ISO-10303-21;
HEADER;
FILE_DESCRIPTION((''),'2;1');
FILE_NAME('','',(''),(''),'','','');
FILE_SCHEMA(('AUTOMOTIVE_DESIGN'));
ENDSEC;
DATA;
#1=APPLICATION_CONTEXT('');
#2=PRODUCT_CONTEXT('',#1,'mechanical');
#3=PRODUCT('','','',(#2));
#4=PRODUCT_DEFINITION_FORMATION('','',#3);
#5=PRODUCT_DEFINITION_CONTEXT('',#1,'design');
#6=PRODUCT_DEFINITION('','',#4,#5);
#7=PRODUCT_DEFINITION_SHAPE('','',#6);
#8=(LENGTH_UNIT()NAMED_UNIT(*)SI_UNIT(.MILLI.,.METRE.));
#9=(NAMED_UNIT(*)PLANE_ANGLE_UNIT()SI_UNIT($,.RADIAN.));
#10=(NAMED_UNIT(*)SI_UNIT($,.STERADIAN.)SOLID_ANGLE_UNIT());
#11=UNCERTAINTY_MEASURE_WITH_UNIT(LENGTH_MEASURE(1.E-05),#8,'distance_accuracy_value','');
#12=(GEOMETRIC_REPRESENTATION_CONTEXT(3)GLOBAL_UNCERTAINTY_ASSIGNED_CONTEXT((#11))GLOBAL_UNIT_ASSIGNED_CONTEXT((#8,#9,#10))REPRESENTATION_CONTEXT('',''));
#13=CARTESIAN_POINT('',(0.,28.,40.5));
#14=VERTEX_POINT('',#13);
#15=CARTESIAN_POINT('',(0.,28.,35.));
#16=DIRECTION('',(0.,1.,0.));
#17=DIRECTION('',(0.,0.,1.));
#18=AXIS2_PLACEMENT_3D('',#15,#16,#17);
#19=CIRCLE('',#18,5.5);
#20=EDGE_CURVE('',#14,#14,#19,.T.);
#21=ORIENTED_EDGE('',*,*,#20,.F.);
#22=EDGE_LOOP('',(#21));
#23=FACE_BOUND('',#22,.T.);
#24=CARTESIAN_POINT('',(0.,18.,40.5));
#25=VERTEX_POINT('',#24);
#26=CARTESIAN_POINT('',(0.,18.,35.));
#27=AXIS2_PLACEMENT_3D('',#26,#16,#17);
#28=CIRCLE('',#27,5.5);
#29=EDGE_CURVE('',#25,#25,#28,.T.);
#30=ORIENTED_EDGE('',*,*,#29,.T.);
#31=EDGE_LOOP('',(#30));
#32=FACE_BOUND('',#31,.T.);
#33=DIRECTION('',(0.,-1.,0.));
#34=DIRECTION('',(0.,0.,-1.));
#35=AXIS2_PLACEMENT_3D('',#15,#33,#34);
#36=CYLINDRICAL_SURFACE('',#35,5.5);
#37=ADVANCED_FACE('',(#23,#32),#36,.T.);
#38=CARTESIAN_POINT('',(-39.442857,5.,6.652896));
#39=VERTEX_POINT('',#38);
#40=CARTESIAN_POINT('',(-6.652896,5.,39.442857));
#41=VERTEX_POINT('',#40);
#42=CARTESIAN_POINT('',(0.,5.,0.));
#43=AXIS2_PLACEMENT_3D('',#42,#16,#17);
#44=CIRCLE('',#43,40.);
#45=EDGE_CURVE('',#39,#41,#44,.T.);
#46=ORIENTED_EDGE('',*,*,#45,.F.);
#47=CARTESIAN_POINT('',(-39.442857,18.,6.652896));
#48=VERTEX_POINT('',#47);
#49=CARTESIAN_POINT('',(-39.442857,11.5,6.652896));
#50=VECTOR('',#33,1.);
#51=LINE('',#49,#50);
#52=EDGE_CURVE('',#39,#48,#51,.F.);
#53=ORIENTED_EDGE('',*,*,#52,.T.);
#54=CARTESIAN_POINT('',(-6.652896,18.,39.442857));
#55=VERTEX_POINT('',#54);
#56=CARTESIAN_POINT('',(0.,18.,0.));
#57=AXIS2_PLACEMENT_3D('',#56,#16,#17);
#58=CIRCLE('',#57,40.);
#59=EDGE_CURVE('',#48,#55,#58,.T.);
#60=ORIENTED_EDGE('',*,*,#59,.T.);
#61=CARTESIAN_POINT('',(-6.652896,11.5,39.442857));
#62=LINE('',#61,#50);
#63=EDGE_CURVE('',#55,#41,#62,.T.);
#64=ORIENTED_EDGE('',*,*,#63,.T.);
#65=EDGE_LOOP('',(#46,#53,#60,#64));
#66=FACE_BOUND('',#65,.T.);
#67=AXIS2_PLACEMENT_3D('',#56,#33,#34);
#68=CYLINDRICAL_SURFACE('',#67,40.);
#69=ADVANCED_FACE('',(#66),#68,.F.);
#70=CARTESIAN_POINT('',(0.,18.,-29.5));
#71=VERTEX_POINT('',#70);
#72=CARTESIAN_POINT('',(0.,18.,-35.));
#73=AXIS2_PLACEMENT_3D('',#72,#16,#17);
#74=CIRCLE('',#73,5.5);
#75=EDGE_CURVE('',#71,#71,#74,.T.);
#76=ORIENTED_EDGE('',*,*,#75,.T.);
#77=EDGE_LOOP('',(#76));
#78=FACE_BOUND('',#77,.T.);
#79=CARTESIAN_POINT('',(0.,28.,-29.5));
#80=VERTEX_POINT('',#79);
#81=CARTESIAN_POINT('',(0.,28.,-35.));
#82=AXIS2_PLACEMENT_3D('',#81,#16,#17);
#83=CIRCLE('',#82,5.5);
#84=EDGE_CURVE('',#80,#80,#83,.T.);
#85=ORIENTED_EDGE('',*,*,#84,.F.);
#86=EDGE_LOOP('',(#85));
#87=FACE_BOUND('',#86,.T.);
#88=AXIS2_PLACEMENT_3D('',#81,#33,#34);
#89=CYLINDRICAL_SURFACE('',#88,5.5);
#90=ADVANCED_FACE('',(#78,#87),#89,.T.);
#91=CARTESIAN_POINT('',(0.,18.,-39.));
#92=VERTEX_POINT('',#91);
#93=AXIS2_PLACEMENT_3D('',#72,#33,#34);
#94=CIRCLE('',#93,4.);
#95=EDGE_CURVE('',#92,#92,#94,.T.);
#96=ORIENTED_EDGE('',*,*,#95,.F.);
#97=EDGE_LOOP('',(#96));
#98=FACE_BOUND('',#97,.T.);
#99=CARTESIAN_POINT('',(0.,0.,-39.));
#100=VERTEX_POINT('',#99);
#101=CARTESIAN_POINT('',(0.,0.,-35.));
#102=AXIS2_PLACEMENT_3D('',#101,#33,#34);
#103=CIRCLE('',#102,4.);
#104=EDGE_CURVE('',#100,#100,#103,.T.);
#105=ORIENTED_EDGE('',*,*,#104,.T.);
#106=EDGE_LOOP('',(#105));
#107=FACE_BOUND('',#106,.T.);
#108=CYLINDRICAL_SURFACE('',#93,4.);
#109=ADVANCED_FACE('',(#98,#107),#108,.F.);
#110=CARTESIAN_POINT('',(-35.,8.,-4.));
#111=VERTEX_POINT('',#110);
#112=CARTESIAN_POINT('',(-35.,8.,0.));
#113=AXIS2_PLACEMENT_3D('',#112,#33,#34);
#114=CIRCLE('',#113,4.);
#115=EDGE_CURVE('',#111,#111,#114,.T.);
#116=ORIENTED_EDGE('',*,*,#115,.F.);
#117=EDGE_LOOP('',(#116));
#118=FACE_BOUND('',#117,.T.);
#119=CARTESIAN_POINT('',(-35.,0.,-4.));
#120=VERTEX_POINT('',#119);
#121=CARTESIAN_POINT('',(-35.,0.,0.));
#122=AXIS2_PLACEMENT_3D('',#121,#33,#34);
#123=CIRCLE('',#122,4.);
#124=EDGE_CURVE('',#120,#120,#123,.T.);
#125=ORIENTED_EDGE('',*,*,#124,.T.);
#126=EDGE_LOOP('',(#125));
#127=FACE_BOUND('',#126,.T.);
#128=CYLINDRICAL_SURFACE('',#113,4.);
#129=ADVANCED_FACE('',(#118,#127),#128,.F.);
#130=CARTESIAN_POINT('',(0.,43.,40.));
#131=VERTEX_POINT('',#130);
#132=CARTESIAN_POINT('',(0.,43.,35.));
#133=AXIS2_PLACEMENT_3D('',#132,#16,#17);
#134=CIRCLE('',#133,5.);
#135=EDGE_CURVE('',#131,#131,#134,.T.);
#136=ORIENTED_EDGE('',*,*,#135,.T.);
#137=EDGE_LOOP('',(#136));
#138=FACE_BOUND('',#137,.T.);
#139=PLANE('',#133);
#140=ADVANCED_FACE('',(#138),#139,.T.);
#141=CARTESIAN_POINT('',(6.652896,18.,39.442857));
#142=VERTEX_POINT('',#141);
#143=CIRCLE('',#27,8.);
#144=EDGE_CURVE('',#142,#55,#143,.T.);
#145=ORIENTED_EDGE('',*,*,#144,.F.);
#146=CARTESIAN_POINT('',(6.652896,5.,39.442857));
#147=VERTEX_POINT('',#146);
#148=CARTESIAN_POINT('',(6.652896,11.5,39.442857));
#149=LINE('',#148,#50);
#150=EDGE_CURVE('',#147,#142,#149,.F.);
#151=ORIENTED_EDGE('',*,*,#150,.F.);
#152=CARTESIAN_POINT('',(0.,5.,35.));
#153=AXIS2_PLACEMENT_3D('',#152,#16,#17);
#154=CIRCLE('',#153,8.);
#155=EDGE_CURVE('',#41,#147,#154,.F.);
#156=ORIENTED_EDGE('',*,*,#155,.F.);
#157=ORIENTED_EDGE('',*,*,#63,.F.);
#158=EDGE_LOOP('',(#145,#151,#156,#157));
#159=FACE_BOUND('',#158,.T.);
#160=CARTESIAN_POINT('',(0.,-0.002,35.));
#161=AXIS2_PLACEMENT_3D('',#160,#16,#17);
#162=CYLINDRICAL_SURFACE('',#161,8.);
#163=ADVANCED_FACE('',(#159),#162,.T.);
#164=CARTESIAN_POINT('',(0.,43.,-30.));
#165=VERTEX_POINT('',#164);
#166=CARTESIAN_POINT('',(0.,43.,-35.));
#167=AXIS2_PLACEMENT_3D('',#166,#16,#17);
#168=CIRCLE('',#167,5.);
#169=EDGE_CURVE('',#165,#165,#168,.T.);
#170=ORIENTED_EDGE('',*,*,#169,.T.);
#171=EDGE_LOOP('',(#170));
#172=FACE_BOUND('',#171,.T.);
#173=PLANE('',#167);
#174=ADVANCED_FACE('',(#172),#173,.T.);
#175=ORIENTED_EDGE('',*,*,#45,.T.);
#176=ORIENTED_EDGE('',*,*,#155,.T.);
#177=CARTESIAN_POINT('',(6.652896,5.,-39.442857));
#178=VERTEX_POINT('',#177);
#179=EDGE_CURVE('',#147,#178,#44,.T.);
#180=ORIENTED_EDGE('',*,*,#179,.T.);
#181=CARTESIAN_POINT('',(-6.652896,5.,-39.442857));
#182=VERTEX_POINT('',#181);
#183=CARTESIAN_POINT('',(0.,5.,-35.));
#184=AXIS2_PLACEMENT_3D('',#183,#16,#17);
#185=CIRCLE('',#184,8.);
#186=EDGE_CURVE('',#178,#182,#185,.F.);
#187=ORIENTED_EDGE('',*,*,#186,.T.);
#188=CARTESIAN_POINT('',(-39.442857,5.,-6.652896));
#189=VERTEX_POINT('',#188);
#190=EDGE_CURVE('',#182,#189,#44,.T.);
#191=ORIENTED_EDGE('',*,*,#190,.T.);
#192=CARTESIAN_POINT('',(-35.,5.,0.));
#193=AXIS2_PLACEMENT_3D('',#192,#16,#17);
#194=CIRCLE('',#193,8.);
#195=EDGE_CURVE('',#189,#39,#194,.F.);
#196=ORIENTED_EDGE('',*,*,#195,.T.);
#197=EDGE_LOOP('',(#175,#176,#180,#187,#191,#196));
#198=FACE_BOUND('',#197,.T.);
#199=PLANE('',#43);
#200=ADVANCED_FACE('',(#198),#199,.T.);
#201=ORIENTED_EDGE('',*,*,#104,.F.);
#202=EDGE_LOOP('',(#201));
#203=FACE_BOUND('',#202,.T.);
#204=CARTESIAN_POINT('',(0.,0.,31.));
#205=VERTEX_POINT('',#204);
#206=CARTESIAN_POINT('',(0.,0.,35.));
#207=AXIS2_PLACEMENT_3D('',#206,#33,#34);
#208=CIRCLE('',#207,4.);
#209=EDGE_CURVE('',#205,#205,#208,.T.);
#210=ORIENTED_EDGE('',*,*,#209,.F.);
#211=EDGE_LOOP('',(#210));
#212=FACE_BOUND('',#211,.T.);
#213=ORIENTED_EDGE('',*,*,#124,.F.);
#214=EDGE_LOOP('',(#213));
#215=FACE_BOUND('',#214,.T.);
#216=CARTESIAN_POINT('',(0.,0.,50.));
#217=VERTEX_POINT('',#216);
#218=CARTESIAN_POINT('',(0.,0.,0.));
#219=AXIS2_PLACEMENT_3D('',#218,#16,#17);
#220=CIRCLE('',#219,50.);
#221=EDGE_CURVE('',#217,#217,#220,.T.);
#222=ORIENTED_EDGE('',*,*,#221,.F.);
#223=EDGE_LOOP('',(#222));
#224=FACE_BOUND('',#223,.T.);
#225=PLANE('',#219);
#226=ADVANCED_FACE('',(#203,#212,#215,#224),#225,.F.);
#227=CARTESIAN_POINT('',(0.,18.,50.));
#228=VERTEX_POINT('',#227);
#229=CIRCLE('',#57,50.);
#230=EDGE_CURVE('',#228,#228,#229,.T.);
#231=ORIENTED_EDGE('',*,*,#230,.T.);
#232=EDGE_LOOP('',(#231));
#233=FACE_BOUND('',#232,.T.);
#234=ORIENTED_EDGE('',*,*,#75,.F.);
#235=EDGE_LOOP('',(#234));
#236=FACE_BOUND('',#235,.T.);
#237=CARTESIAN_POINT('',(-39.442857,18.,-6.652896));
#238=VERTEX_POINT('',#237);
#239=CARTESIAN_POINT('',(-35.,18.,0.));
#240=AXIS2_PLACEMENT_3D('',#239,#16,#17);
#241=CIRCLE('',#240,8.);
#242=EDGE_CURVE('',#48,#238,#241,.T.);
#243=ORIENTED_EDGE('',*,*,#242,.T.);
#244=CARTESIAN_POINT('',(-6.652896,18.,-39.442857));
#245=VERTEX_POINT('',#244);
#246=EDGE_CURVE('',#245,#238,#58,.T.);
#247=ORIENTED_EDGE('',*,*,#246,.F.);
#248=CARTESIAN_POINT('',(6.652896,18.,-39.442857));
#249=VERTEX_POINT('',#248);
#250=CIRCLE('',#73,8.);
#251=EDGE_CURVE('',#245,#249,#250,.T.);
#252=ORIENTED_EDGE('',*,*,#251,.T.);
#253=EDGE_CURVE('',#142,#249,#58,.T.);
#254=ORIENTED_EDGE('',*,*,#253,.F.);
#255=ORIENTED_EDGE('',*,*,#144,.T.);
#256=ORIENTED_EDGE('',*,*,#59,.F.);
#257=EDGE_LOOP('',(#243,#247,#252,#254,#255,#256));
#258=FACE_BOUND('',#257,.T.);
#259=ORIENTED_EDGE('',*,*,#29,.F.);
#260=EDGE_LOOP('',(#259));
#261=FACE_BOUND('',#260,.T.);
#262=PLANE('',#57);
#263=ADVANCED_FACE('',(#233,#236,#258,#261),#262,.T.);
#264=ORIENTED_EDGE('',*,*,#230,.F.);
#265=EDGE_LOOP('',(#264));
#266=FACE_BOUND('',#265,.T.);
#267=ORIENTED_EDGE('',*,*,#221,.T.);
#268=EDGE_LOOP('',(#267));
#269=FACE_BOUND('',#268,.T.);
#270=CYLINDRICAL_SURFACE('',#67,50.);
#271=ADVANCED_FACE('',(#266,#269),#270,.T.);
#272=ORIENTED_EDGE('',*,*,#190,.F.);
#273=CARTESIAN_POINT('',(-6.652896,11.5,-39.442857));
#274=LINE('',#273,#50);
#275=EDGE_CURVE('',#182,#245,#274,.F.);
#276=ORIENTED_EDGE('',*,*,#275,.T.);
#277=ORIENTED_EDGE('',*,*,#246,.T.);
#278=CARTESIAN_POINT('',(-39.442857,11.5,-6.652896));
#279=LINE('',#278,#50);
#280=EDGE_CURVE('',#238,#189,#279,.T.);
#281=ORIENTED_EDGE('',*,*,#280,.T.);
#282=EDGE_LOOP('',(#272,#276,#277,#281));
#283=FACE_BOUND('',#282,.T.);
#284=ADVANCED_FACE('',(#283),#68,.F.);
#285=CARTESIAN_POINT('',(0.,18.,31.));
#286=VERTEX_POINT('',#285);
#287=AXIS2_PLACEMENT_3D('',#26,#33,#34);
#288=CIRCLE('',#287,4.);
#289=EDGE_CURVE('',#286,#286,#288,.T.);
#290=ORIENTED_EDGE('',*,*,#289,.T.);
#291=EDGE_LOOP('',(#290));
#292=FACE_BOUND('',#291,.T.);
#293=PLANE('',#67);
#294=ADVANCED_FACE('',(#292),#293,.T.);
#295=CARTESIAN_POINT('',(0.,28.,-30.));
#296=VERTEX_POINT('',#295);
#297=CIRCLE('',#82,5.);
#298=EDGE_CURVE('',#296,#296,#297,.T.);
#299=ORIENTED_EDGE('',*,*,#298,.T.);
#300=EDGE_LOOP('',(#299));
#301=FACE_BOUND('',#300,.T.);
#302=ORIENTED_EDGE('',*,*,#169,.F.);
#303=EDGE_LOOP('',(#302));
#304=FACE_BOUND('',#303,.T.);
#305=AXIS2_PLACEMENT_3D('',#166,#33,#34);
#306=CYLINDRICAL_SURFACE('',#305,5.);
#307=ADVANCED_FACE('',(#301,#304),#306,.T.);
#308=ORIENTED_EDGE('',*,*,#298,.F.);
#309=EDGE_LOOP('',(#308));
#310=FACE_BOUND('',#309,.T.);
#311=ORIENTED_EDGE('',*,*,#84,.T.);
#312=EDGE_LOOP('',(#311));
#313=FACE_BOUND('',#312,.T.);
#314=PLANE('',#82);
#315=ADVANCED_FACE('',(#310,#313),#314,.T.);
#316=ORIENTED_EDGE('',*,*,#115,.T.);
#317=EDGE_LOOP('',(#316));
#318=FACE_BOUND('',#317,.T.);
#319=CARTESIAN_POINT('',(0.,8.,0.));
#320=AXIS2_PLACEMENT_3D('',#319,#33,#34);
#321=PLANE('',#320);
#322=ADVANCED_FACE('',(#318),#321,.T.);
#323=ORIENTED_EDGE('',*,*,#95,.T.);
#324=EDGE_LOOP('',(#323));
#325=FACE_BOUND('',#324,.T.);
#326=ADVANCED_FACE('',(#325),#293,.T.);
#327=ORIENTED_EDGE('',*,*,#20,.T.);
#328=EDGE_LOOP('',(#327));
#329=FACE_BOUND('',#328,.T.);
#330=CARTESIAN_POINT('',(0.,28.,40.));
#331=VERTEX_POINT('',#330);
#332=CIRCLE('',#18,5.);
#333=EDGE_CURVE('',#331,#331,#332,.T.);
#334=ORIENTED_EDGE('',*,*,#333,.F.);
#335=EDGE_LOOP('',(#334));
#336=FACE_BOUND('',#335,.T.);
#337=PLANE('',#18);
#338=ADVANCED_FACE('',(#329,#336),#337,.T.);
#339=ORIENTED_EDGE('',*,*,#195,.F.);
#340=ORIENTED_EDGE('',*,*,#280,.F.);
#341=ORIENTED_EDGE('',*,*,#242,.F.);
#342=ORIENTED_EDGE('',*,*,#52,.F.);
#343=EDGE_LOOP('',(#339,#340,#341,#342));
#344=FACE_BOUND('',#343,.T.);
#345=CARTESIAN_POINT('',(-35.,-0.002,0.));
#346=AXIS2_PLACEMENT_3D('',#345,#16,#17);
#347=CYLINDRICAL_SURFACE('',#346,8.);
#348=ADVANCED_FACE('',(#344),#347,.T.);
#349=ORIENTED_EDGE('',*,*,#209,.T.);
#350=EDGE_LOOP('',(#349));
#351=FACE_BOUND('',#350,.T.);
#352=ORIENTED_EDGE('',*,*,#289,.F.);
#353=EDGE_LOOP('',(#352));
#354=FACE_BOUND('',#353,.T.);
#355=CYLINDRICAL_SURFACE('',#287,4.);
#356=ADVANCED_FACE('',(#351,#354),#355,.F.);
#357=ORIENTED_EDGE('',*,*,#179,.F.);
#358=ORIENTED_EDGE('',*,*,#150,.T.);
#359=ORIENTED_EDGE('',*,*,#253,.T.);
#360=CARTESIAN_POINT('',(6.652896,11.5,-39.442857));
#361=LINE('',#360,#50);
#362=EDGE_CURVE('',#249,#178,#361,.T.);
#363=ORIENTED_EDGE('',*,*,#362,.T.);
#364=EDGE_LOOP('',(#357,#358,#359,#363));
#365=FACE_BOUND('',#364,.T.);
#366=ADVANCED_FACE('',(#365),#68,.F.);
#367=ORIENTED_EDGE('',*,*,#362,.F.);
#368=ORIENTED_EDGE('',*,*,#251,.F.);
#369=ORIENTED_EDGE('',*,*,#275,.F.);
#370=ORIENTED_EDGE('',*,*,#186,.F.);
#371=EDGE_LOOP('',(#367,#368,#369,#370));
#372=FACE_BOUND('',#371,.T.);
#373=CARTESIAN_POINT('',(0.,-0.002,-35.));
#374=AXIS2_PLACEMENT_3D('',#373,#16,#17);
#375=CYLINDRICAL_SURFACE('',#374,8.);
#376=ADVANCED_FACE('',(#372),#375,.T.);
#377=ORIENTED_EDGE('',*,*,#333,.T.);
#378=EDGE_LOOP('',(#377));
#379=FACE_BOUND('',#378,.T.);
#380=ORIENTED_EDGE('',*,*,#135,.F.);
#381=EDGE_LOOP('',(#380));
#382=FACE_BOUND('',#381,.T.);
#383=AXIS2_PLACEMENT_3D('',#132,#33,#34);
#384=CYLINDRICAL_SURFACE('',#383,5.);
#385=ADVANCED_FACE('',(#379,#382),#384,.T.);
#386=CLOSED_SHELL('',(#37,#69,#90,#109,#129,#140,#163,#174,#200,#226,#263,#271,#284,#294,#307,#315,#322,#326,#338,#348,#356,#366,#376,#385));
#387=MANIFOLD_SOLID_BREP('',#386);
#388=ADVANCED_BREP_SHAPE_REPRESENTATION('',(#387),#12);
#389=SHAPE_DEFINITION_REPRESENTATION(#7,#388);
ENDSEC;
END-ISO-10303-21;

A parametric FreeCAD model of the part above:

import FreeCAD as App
import Part
import Sketcher
from FreeCAD import Vector
Q = App.Units.Quantity

doc = App.newDocument("Part")
body = doc.addObject("PartDesign::Body", "Body")

sketch1 = doc.addObject("Sketcher::SketchObject", "Sketch")
body.addObject(sketch1)
sketch1.AttachmentSupport = (doc.XZ_Plane, [""])
sketch1.MapMode = "FlatFace"
sketch1.addGeometry(Part.Circle(Vector(0, 0, 0), Vector(0, 0, 1), 50), False)
sketch1.addConstraint(Sketcher.Constraint("Coincident", 0, 3, -1, 1))
sketch1.addConstraint(Sketcher.Constraint("Diameter", 0, Q("100 mm")))
pad1 = doc.addObject("PartDesign::Pad", "Pad")
body.addObject(pad1)
pad1.Profile = sketch1
pad1.Length = 18
pad1.Reversed = True

sketch2 = doc.addObject("Sketcher::SketchObject", "Sketch001")
body.addObject(sketch2)
sketch2.AttachmentSupport = (doc.XZ_Plane, [""])
sketch2.MapMode = "FlatFace"
sketch2.AttachmentOffset = App.Placement(Vector(0, 0, -5), App.Rotation())
sketch2.addGeometry(Part.Circle(Vector(0, 0, 0), Vector(0, 0, 1), 40), False)
sketch2.addConstraint(Sketcher.Constraint("Coincident", 0, 3, -1, 1))
sketch2.addConstraint(Sketcher.Constraint("Diameter", 0, Q("80 mm")))
pocket1 = doc.addObject("PartDesign::Pocket", "Pocket")
body.addObject(pocket1)
pocket1.Profile = sketch2
pocket1.Length = 13

sketch3 = doc.addObject("Sketcher::SketchObject", "Sketch002")
body.addObject(sketch3)
sketch3.AttachmentSupport = (doc.XZ_Plane, [""])
sketch3.MapMode = "FlatFace"
sketch3.AttachmentOffset = App.Placement(Vector(0, 0, -18), App.Rotation())
sketch3.addGeometry(Part.Circle(Vector(0, -35, 0), Vector(0, 0, 1), 8), False)
sketch3.addConstraint(Sketcher.Constraint("PointOnObject", 0, 3, -2))
sketch3.addConstraint(Sketcher.Constraint("Diameter", 0, Q("16 mm")))
sketch3.addConstraint(Sketcher.Constraint("DistanceY", 0, 3, -1, 1, Q("35 mm")))
pad2 = doc.addObject("PartDesign::Pad", "Pad001")
body.addObject(pad2)
pad2.Profile = sketch3
pad2.Type = "UpToFirst"

sketch4 = doc.addObject("Sketcher::SketchObject", "Sketch003")
body.addObject(sketch4)
sketch4.AttachmentSupport = (doc.XZ_Plane, [""])
sketch4.MapMode = "FlatFace"
sketch4.AttachmentOffset = App.Placement(Vector(0, 0, -18), App.Rotation())
sketch4.addGeometry(Part.Circle(Vector(0, 35, 0), Vector(0, 0, 1), 8), False)
sketch4.addConstraint(Sketcher.Constraint("PointOnObject", 0, 3, -2))
sketch4.addConstraint(Sketcher.Constraint("Diameter", 0, Q("16 mm")))
sketch4.addConstraint(Sketcher.Constraint("DistanceY", -1, 1, 0, 3, Q("35 mm")))
pad3 = doc.addObject("PartDesign::Pad", "Pad002")
body.addObject(pad3)
pad3.Profile = sketch4
pad3.Type = "UpToFirst"

sketch5 = doc.addObject("Sketcher::SketchObject", "Sketch004")
body.addObject(sketch5)
sketch5.AttachmentSupport = (doc.XZ_Plane, [""])
sketch5.MapMode = "FlatFace"
sketch5.AttachmentOffset = App.Placement(Vector(0, 0, -18), App.Rotation())
sketch5.addGeometry(Part.Circle(Vector(-35, 0, 0), Vector(0, 0, 1), 8), False)
sketch5.addConstraint(Sketcher.Constraint("PointOnObject", 0, 3, -1))
sketch5.addConstraint(Sketcher.Constraint("Diameter", 0, Q("16 mm")))
sketch5.addConstraint(Sketcher.Constraint("DistanceX", 0, 3, -1, 1, Q("35 mm")))
pad4 = doc.addObject("PartDesign::Pad", "Pad003")
body.addObject(pad4)
pad4.Profile = sketch5
pad4.Type = "UpToFirst"

sketch6 = doc.addObject("Sketcher::SketchObject", "Sketch005")
body.addObject(sketch6)
sketch6.AttachmentSupport = (doc.XZ_Plane, [""])
sketch6.MapMode = "FlatFace"
sketch6.AttachmentOffset = App.Placement(Vector(0, 0, -18), App.Rotation())
sketch6.addGeometry(Part.Circle(Vector(0, -35, 0), Vector(0, 0, 1), 5.5), False)
sketch6.addGeometry(Part.Circle(Vector(0, 35, 0), Vector(0, 0, 1), 5.5), False)
sketch6.addConstraint(Sketcher.Constraint("Equal", 0, 1))
sketch6.addConstraint(Sketcher.Constraint("Symmetric", 0, 3, 1, 3, -1, 1))
sketch6.addConstraint(Sketcher.Constraint("PointOnObject", 0, 3, -2))
sketch6.addConstraint(Sketcher.Constraint("Diameter", 0, Q("11 mm")))
sketch6.addConstraint(Sketcher.Constraint("DistanceY", 0, 3, -1, 1, Q("35 mm")))
pad5 = doc.addObject("PartDesign::Pad", "Pad004")
body.addObject(pad5)
pad5.Profile = sketch6
pad5.Length = 10
pad5.Reversed = True

sketch7 = doc.addObject("Sketcher::SketchObject", "Sketch006")
body.addObject(sketch7)
sketch7.AttachmentSupport = (doc.XZ_Plane, [""])
sketch7.MapMode = "FlatFace"
sketch7.AttachmentOffset = App.Placement(Vector(0, 0, -28), App.Rotation())
sketch7.addGeometry(Part.Circle(Vector(0, 35, 0), Vector(0, 0, 1), 5), False)
sketch7.addGeometry(Part.Circle(Vector(0, -35, 0), Vector(0, 0, 1), 5), False)
sketch7.addConstraint(Sketcher.Constraint("Equal", 0, 1))
sketch7.addConstraint(Sketcher.Constraint("Symmetric", 0, 3, 1, 3, -1, 1))
sketch7.addConstraint(Sketcher.Constraint("PointOnObject", 0, 3, -2))
sketch7.addConstraint(Sketcher.Constraint("Diameter", 0, Q("10 mm")))
sketch7.addConstraint(Sketcher.Constraint("DistanceY", -1, 1, 0, 3, Q("35 mm")))
pad6 = doc.addObject("PartDesign::Pad", "Pad005")
body.addObject(pad6)
pad6.Profile = sketch7
pad6.Length = 15
pad6.Reversed = True

sketch8 = doc.addObject("Sketcher::SketchObject", "Sketch007")
body.addObject(sketch8)
sketch8.AttachmentSupport = (doc.XZ_Plane, [""])
sketch8.MapMode = "FlatFace"
sketch8.addGeometry(Part.Circle(Vector(0, 35, 0), Vector(0, 0, 1), 4), False)
sketch8.addGeometry(Part.Circle(Vector(0, -35, 0), Vector(0, 0, 1), 4), False)
sketch8.addConstraint(Sketcher.Constraint("Equal", 0, 1))
sketch8.addConstraint(Sketcher.Constraint("Symmetric", 0, 3, 1, 3, -1, 1))
sketch8.addConstraint(Sketcher.Constraint("PointOnObject", 0, 3, -2))
sketch8.addConstraint(Sketcher.Constraint("Diameter", 0, Q("8 mm")))
sketch8.addConstraint(Sketcher.Constraint("DistanceY", -1, 1, 0, 3, Q("35 mm")))
pocket2 = doc.addObject("PartDesign::Pocket", "Pocket001")
body.addObject(pocket2)
pocket2.Profile = sketch8
pocket2.Length = 18

sketch9 = doc.addObject("Sketcher::SketchObject", "Sketch008")
body.addObject(sketch9)
sketch9.AttachmentSupport = (doc.XZ_Plane, [""])
sketch9.MapMode = "FlatFace"
sketch9.addGeometry(Part.Circle(Vector(-35, 0, 0), Vector(0, 0, 1), 4), False)
sketch9.addConstraint(Sketcher.Constraint("PointOnObject", 0, 3, -1))
sketch9.addConstraint(Sketcher.Constraint("Diameter", 0, Q("8 mm")))
sketch9.addConstraint(Sketcher.Constraint("DistanceX", 0, 3, -1, 1, Q("35 mm")))
pocket3 = doc.addObject("PartDesign::Pocket", "Pocket002")
body.addObject(pocket3)
pocket3.Profile = sketch9
pocket3.Length = 8

doc.recompute()
